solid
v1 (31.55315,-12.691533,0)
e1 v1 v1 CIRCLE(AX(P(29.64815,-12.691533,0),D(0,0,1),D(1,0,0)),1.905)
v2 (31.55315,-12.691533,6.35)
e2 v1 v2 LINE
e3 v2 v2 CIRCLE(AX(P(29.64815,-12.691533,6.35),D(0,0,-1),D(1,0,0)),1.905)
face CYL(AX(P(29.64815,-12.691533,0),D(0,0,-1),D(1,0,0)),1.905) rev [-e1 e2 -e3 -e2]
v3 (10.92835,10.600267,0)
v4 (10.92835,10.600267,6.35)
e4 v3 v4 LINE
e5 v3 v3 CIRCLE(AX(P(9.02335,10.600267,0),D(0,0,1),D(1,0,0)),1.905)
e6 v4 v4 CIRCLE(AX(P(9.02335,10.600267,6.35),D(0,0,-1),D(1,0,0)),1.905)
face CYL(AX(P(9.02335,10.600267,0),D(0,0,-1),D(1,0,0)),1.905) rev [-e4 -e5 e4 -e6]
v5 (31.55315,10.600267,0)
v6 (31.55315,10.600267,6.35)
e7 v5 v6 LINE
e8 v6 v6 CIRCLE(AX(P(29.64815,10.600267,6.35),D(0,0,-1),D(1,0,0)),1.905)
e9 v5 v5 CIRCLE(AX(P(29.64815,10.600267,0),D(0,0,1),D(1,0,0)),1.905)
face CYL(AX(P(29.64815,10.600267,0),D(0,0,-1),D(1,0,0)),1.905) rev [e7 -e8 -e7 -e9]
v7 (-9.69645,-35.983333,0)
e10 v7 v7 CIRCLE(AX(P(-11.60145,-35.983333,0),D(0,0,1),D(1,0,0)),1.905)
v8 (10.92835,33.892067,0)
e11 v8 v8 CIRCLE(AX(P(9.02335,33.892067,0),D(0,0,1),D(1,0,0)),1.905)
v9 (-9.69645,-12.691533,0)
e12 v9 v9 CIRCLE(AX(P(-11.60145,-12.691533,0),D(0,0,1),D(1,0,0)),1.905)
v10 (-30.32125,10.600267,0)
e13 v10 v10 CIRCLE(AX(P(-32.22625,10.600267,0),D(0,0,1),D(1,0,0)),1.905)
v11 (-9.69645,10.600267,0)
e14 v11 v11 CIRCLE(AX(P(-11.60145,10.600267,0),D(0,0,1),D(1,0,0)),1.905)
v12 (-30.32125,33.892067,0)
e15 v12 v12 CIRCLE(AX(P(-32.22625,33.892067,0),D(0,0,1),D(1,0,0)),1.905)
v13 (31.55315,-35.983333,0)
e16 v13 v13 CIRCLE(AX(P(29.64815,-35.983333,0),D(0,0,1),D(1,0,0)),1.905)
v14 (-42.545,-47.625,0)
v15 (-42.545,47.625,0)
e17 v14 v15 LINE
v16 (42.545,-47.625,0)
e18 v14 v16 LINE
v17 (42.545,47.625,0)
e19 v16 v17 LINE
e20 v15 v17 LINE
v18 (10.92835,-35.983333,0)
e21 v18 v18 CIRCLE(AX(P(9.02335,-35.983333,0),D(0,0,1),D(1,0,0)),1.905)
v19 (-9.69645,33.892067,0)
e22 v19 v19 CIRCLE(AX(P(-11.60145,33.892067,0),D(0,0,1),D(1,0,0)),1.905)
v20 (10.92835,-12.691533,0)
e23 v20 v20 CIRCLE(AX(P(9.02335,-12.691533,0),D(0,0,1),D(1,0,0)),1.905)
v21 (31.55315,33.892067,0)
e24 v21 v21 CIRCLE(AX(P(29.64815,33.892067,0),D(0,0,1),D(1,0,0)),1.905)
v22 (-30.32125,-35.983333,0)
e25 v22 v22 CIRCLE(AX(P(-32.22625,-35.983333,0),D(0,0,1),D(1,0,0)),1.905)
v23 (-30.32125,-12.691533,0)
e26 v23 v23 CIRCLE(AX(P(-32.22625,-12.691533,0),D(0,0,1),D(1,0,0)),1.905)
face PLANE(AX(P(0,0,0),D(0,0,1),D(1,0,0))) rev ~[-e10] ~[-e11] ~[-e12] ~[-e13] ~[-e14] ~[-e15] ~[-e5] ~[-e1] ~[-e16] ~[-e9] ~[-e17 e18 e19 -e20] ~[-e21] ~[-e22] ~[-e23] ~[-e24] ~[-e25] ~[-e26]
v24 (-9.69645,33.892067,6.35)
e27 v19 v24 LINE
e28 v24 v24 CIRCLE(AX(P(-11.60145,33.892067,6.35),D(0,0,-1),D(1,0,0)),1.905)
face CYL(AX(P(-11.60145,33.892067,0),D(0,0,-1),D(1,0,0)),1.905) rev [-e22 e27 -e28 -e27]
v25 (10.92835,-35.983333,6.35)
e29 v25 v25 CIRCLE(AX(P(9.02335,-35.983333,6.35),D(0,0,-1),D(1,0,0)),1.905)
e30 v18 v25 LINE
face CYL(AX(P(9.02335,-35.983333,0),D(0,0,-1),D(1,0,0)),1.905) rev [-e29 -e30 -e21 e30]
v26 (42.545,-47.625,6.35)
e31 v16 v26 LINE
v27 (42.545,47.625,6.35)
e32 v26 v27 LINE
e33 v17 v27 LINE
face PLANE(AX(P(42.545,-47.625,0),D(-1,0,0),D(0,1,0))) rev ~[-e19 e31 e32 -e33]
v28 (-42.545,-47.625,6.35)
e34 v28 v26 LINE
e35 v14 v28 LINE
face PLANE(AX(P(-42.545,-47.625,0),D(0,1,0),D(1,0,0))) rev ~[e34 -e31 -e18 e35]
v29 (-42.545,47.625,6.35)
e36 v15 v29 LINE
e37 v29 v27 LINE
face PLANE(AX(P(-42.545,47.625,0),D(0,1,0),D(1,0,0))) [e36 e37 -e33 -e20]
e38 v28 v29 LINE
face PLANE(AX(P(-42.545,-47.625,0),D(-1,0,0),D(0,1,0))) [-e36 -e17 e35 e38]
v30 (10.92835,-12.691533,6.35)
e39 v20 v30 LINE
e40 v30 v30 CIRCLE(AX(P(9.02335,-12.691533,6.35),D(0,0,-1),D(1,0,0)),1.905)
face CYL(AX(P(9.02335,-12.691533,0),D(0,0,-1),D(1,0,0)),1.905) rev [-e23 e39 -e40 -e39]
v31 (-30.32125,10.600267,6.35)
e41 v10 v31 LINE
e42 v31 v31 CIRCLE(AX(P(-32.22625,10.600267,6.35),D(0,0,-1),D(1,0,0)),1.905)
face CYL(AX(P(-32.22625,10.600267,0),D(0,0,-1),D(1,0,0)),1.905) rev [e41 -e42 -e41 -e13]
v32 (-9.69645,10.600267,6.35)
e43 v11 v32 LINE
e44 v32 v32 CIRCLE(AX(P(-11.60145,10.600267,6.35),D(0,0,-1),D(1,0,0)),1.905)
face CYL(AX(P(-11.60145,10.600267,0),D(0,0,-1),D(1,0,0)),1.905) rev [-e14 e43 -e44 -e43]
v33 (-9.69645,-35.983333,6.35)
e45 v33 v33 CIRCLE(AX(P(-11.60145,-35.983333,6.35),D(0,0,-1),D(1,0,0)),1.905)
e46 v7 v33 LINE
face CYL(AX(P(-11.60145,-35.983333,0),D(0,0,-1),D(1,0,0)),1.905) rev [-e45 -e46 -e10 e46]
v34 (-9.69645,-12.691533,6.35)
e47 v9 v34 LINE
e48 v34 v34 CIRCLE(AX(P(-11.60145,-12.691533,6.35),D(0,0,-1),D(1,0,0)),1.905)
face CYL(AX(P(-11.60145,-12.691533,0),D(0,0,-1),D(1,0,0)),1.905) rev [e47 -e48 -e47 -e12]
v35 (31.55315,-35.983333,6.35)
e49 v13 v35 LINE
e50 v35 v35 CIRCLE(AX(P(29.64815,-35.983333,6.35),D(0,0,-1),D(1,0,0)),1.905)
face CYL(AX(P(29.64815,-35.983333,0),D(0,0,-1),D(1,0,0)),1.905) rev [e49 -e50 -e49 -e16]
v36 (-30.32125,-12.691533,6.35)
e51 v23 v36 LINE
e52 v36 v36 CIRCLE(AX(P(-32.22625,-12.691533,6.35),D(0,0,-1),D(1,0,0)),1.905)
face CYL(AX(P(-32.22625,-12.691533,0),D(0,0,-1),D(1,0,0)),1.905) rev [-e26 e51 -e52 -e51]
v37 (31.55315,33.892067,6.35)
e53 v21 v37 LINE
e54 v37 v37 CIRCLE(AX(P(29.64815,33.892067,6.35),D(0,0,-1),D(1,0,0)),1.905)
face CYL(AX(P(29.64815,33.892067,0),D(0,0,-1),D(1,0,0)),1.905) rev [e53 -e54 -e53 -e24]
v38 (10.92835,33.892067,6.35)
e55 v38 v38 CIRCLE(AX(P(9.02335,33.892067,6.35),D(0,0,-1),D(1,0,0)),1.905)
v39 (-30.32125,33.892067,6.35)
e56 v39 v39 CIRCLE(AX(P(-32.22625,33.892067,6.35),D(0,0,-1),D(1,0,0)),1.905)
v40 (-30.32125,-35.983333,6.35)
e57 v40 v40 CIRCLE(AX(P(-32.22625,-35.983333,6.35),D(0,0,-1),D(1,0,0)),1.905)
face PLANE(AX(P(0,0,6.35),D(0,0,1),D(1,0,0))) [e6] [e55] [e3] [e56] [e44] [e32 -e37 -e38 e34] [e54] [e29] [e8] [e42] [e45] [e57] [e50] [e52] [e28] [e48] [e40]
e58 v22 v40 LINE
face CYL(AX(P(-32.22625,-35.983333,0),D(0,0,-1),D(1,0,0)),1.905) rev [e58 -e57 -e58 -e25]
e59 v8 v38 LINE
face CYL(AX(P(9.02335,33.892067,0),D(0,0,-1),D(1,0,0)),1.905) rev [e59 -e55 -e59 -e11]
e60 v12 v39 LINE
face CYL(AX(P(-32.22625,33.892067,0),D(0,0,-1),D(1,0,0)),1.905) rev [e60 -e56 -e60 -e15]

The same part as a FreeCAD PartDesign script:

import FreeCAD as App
import Part
import Sketcher

V = App.Vector
Q = App.Units.Quantity


def add_polygon(sketch, points):
    """Adds a closed chain of lines whose ends are joined by coincident constraints."""
    first, n = sketch.GeometryCount, len(points)
    for a, b in zip(points, points[1:] + points[:1]):
        sketch.addGeometry(Part.LineSegment(App.Vector(*a, 0), App.Vector(*b, 0)), False)
    for i in range(n):
        sketch.addConstraint(Sketcher.Constraint("Coincident", first + i, 2, first + (i + 1) % n, 1))

doc = App.newDocument("Part")
params = doc.addObject("Spreadsheet::Sheet", "Params")
for row, (alias, value) in enumerate([
    ("sketch1_width", "3.35 in"),
    ("sketch1_height", "3.75 in"),
    ("pad1_length", "0.25 in"),
    ("sketch2_diameter", "0.15 in"),
], start=1):
    params.set(f"A{row}", alias)
    params.set(f"B{row}", "=" + value)
    params.setAlias(f"B{row}", alias)

body = doc.addObject("PartDesign::Body", "Body")

# Sketch on XY plane
sketch1 = body.newObject("Sketcher::SketchObject", "Sketch")
sketch1.AttachmentSupport = (doc.getObject("XY_Plane"), [""])
sketch1.MapMode = "FlatFace"
add_polygon(sketch1, [(-42.545, 47.625), (-42.545, -47.625), (42.545, -47.625), (42.545, 47.625)])  # lines 0-3
sketch1.addConstraint([
    Sketcher.Constraint("Vertical", 0),
    Sketcher.Constraint("Horizontal", 1),
    Sketcher.Constraint("Vertical", 2),
    Sketcher.Constraint("Horizontal", 3),
    Sketcher.Constraint("Symmetric", 0, 2, 2, 2, -1, 1),
    Sketcher.Constraint("DistanceX", 1, 1, 1, 2, Q("3.35 in")),
    Sketcher.Constraint("DistanceY", 0, 2, 0, 1, Q("3.75 in")),
])
sketch1.setExpression("Constraints[9]", "Params.sketch1_width")
sketch1.setExpression("Constraints[10]", "Params.sketch1_height")
pad1 = body.newObject("PartDesign::Pad", "Pad")
pad1.Profile = sketch1
pad1.setExpression("Length", "Params.pad1_length")

# Sketch on XY plane
sketch2 = body.newObject("Sketcher::SketchObject", "Sketch001")
sketch2.AttachmentSupport = (doc.getObject("XY_Plane"), [""])
sketch2.MapMode = "FlatFace"
sketch2.addGeometry([
    Part.Circle(V(-32.22625, -35.983333, 0), V(0, 0, 1), 1.905),  # 0
    Part.Circle(V(-32.22625, -12.691533, 0), V(0, 0, 1), 1.905),  # 1
    Part.Circle(V(-32.22625, 10.600267, 0), V(0, 0, 1), 1.905),  # 2
    Part.Circle(V(-32.22625, 33.892067, 0), V(0, 0, 1), 1.905),  # 3
    Part.Circle(V(-32.22625, 57.183867, 0), V(0, 0, 1), 1.905),  # 4
    Part.Circle(V(-32.22625, 80.475667, 0), V(0, 0, 1), 1.905),  # 5
    Part.Circle(V(-11.60145, -35.983333, 0), V(0, 0, 1), 1.905),  # 6
    Part.Circle(V(-11.60145, -12.691533, 0), V(0, 0, 1), 1.905),  # 7
    Part.Circle(V(-11.60145, 10.600267, 0), V(0, 0, 1), 1.905),  # 8
    Part.Circle(V(-11.60145, 33.892067, 0), V(0, 0, 1), 1.905),  # 9
    Part.Circle(V(-11.60145, 57.183867, 0), V(0, 0, 1), 1.905),  # 10
    Part.Circle(V(-11.60145, 80.475667, 0), V(0, 0, 1), 1.905),  # 11
    Part.Circle(V(9.02335, -35.983333, 0), V(0, 0, 1), 1.905),  # 12
    Part.Circle(V(9.02335, -12.691533, 0), V(0, 0, 1), 1.905),  # 13
    Part.Circle(V(9.02335, 10.600267, 0), V(0, 0, 1), 1.905),  # 14
    Part.Circle(V(9.02335, 33.892067, 0), V(0, 0, 1), 1.905),  # 15
    Part.Circle(V(9.02335, 57.183867, 0), V(0, 0, 1), 1.905),  # 16
    Part.Circle(V(9.02335, 80.475667, 0), V(0, 0, 1), 1.905),  # 17
    Part.Circle(V(29.64815, -35.983333, 0), V(0, 0, 1), 1.905),  # 18
    Part.Circle(V(29.64815, -12.691533, 0), V(0, 0, 1), 1.905),  # 19
    Part.Circle(V(29.64815, 10.600267, 0), V(0, 0, 1), 1.905),  # 20
    Part.Circle(V(29.64815, 33.892067, 0), V(0, 0, 1), 1.905),  # 21
    Part.Circle(V(29.64815, 57.183867, 0), V(0, 0, 1), 1.905),  # 22
    Part.Circle(V(29.64815, 80.475667, 0), V(0, 0, 1), 1.905),  # 23
], False)
sketch2.addConstraint([
    Sketcher.Constraint("Equal", 0, 1),
    Sketcher.Constraint("Equal", 1, 2),
    Sketcher.Constraint("Equal", 2, 3),
    Sketcher.Constraint("Equal", 3, 4),
    Sketcher.Constraint("Equal", 4, 5),
    Sketcher.Constraint("Equal", 5, 6),
    Sketcher.Constraint("Equal", 6, 7),
    Sketcher.Constraint("Equal", 7, 8),
    Sketcher.Constraint("Equal", 8, 9),
    Sketcher.Constraint("Equal", 9, 10),
    Sketcher.Constraint("Equal", 10, 11),
    Sketcher.Constraint("Equal", 11, 12),
    Sketcher.Constraint("Equal", 12, 13),
    Sketcher.Constraint("Equal", 13, 14),
    Sketcher.Constraint("Equal", 14, 15),
    Sketcher.Constraint("Equal", 15, 16),
    Sketcher.Constraint("Equal", 16, 17),
    Sketcher.Constraint("Equal", 17, 18),
    Sketcher.Constraint("Equal", 18, 19),
    Sketcher.Constraint("Equal", 19, 20),
    Sketcher.Constraint("Equal", 20, 21),
    Sketcher.Constraint("Equal", 21, 22),
    Sketcher.Constraint("Equal", 22, 23),
    Sketcher.Constraint("Horizontal", 0, 3, 6, 3),
    Sketcher.Constraint("Horizontal", 1, 3, 7, 3),
    Sketcher.Constraint("Horizontal", 2, 3, 8, 3),
    Sketcher.Constraint("Horizontal", 3, 3, 9, 3),
    Sketcher.Constraint("Horizontal", 4, 3, 10, 3),
    Sketcher.Constraint("Horizontal", 5, 3, 11, 3),
    Sketcher.Constraint("Horizontal", 6, 3, 12, 3),
    Sketcher.Constraint("Horizontal", 7, 3, 13, 3),
    Sketcher.Constraint("Horizontal", 8, 3, 14, 3),
    Sketcher.Constraint("Horizontal", 9, 3, 15, 3),
    Sketcher.Constraint("Horizontal", 10, 3, 16, 3),
    Sketcher.Constraint("Horizontal", 11, 3, 17, 3),
    Sketcher.Constraint("Horizontal", 12, 3, 18, 3),
    Sketcher.Constraint("Horizontal", 13, 3, 19, 3),
    Sketcher.Constraint("Horizontal", 14, 3, 20, 3),
    Sketcher.Constraint("Horizontal", 15, 3, 21, 3),
    Sketcher.Constraint("Horizontal", 16, 3, 22, 3),
    Sketcher.Constraint("Horizontal", 17, 3, 23, 3),
    Sketcher.Constraint("Vertical", 0, 3, 1, 3),
    Sketcher.Constraint("Vertical", 1, 3, 2, 3),
    Sketcher.Constraint("Vertical", 2, 3, 3, 3),
    Sketcher.Constraint("Vertical", 3, 3, 4, 3),
    Sketcher.Constraint("Vertical", 4, 3, 5, 3),
    Sketcher.Constraint("Vertical", 6, 3, 7, 3),
    Sketcher.Constraint("Vertical", 7, 3, 8, 3),
    Sketcher.Constraint("Vertical", 8, 3, 9, 3),
    Sketcher.Constraint("Vertical", 9, 3, 10, 3),
    Sketcher.Constraint("Vertical", 10, 3, 11, 3),
    Sketcher.Constraint("Vertical", 12, 3, 13, 3),
    Sketcher.Constraint("Vertical", 13, 3, 14, 3),
    Sketcher.Constraint("Vertical", 14, 3, 15, 3),
    Sketcher.Constraint("Vertical", 15, 3, 16, 3),
    Sketcher.Constraint("Vertical", 16, 3, 17, 3),
    Sketcher.Constraint("Vertical", 18, 3, 19, 3),
    Sketcher.Constraint("Vertical", 19, 3, 20, 3),
    Sketcher.Constraint("Vertical", 20, 3, 21, 3),
    Sketcher.Constraint("Vertical", 21, 3, 22, 3),
    Sketcher.Constraint("Vertical", 22, 3, 23, 3),
    Sketcher.Constraint("Diameter", 0, Q("0.15 in")),
    Sketcher.Constraint("DistanceY", 0, 3, 1, 3, Q("0.917 in")),
    Sketcher.Constraint("DistanceY", 1, 3, 2, 3, Q("0.917 in")),
    Sketcher.Constraint("DistanceY", 2, 3, 3, 3, Q("0.917 in")),
    Sketcher.Constraint("DistanceY", 3, 3, 4, 3, Q("0.917 in")),
    Sketcher.Constraint("DistanceY", 4, 3, 5, 3, Q("0.917 in")),
    Sketcher.Constraint("DistanceX", 0, 3, 6, 3, Q("0.812 in")),
    Sketcher.Constraint("DistanceX", 6, 3, 12, 3, Q("0.812 in")),
    Sketcher.Constraint("DistanceX", 12, 3, 18, 3, Q("0.812 in")),
    Sketcher.Constraint("DistanceX", 0, 3, -1, 1, Q("32.22625 mm")),
    Sketcher.Constraint("DistanceY", 0, 3, -1, 1, Q("35.983333 mm")),
])
sketch2.setExpression("Constraints[61]", "Params.sketch2_diameter")
pocket1 = body.newObject("PartDesign::Pocket", "Pocket")
pocket1.Profile = sketch2
pocket1.Type = "ThroughAll"
pocket1.Reversed = True

doc.recompute()
